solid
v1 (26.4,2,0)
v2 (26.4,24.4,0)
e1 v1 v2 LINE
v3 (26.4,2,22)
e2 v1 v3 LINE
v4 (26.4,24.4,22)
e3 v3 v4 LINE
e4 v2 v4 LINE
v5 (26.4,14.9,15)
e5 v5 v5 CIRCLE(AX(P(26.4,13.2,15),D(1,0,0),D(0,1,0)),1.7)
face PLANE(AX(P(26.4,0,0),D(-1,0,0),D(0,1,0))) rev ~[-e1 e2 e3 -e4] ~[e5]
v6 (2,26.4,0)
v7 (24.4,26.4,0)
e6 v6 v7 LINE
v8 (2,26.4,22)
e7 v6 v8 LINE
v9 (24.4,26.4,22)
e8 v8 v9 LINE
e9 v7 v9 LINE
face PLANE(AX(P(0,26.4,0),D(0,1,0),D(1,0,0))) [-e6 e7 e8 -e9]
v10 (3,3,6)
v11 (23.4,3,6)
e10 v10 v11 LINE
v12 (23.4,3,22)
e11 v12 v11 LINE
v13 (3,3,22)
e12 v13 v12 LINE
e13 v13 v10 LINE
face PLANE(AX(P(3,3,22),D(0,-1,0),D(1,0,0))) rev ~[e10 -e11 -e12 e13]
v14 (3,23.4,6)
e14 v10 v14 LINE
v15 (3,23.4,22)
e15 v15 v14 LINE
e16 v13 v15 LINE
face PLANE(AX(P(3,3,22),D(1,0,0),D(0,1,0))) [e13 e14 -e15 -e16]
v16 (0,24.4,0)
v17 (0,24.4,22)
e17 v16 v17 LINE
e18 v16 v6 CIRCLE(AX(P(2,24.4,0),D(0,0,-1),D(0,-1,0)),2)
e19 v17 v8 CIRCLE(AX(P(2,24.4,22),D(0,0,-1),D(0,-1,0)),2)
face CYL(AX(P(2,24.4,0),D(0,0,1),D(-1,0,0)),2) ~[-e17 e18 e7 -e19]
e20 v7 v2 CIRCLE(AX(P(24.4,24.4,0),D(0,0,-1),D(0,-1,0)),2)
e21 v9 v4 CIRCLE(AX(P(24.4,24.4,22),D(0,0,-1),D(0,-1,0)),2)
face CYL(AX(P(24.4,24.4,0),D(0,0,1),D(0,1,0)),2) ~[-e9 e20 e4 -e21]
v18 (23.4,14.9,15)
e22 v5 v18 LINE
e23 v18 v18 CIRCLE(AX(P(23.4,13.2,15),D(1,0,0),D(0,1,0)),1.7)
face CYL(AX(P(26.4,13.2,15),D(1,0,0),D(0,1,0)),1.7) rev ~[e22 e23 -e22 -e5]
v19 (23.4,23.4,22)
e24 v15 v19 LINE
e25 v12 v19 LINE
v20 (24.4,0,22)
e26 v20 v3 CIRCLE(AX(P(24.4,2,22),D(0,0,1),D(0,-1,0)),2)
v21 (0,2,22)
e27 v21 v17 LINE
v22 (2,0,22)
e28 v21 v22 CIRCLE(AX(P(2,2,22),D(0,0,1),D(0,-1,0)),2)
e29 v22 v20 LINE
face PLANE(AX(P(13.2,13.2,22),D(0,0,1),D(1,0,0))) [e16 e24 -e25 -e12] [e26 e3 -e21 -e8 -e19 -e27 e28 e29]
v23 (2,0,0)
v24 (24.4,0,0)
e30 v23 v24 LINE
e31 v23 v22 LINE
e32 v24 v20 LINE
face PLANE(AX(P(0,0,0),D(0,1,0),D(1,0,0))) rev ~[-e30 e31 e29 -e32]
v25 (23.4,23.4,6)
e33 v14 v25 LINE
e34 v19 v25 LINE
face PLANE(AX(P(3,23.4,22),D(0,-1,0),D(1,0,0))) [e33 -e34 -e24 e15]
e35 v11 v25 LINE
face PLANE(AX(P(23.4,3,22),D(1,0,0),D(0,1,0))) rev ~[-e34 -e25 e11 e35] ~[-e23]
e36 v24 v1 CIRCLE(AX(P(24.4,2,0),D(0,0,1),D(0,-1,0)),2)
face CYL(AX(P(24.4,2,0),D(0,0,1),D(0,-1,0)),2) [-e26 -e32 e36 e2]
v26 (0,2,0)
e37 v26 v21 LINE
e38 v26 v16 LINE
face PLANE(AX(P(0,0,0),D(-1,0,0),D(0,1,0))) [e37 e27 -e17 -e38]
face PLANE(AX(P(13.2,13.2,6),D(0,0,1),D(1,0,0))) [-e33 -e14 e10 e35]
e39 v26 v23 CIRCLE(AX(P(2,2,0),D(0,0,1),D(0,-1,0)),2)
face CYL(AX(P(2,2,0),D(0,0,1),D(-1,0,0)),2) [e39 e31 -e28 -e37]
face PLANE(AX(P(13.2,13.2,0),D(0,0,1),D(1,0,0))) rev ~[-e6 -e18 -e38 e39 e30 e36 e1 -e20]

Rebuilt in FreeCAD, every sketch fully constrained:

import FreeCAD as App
import Part
import Sketcher
Q = App.Units.Quantity


def edges_at(feature, points):
    """Names of the edges that pass closest to the given points."""
    edges = feature.Shape.Edges
    near = lambda p: min(range(len(edges)), key=lambda i: edges[i].distToShape(Part.Vertex(*p))[0])
    return sorted({f"Edge{near(p) + 1}" for p in points})

doc = App.newDocument("Part")
body = doc.addObject("PartDesign::Body", "Body")

sketch1 = body.newObject("Sketcher::SketchObject", "Sketch")
sketch1.AttachmentSupport = (doc.getObject("XY_Plane"), [""])
sketch1.MapMode = "FlatFace"
sketch1.addGeometry([
    Part.LineSegment(App.Vector(0, 26.4, 0), App.Vector(0, 0, 0)),
    Part.LineSegment(App.Vector(0, 0, 0), App.Vector(26.4, 0, 0)),
    Part.LineSegment(App.Vector(26.4, 0, 0), App.Vector(26.4, 26.4, 0)),
    Part.LineSegment(App.Vector(26.4, 26.4, 0), App.Vector(0, 26.4, 0)),
], False)
sketch1.addConstraint([
    Sketcher.Constraint("Coincident", 0, 2, 1, 1),
    Sketcher.Constraint("Coincident", 1, 2, 2, 1),
    Sketcher.Constraint("Coincident", 2, 2, 3, 1),
    Sketcher.Constraint("Coincident", 3, 2, 0, 1),
    Sketcher.Constraint("Vertical", 0),
    Sketcher.Constraint("Horizontal", 1),
    Sketcher.Constraint("Vertical", 2),
    Sketcher.Constraint("Horizontal", 3),
    Sketcher.Constraint("Coincident", 0, 2, -1, 1),
    Sketcher.Constraint("Equal", 3, 0),
    Sketcher.Constraint("DistanceX", 1, 1, 1, 2, Q("26.4 mm")),
])
pad1 = body.newObject("PartDesign::Pad", "Pad")
pad1.Profile = sketch1
pad1.Length = 22

sketch2 = body.newObject("Sketcher::SketchObject", "Sketch001")
sketch2.AttachmentSupport = (doc.getObject("XY_Plane"), [""])
sketch2.MapMode = "FlatFace"
sketch2.AttachmentOffset = App.Placement(App.Vector(0, 0, 22), App.Rotation())
sketch2.addGeometry([
    Part.LineSegment(App.Vector(3, 23.4, 0), App.Vector(3, 3, 0)),
    Part.LineSegment(App.Vector(3, 3, 0), App.Vector(23.4, 3, 0)),
    Part.LineSegment(App.Vector(23.4, 3, 0), App.Vector(23.4, 23.4, 0)),
    Part.LineSegment(App.Vector(23.4, 23.4, 0), App.Vector(3, 23.4, 0)),
], False)
sketch2.addConstraint([
    Sketcher.Constraint("Coincident", 0, 2, 1, 1),
    Sketcher.Constraint("Coincident", 1, 2, 2, 1),
    Sketcher.Constraint("Coincident", 2, 2, 3, 1),
    Sketcher.Constraint("Coincident", 3, 2, 0, 1),
    Sketcher.Constraint("Vertical", 0),
    Sketcher.Constraint("Horizontal", 1),
    Sketcher.Constraint("Vertical", 2),
    Sketcher.Constraint("Horizontal", 3),
    Sketcher.Constraint("Equal", 3, 0),
    Sketcher.Constraint("DistanceX", 1, 1, 1, 2, Q("20.4 mm")),
    Sketcher.Constraint("DistanceX", -1, 1, 0, 2, Q("3 mm")),
    Sketcher.Constraint("DistanceY", -1, 1, 0, 2, Q("3 mm")),
])
pocket1 = body.newObject("PartDesign::Pocket", "Pocket")
pocket1.Profile = sketch2
pocket1.Length = 16
doc.recompute()

fillet = body.newObject("PartDesign::Fillet", "Fillet")
fillet.Base = (pocket1, edges_at(pocket1, [
    (0, 26.4, 11),
    (26.4, 26.4, 11),
    (26.4, 0, 11),
    (0, 0, 11),
]))
fillet.Radius = 2

sketch3 = body.newObject("Sketcher::SketchObject", "Sketch002")
sketch3.AttachmentSupport = (doc.getObject("YZ_Plane"), [""])
sketch3.MapMode = "FlatFace"
sketch3.AttachmentOffset = App.Placement(App.Vector(0, 0, 26.4), App.Rotation())
sketch3.addGeometry(Part.Circle(App.Vector(13.2, 15, 0), App.Vector(0, 0, 1), 1.7), False)
sketch3.addConstraint([
    Sketcher.Constraint("Diameter", 0, Q("3.4 mm")),
    Sketcher.Constraint("DistanceY", -1, 1, 0, 3, Q("15 mm")),
    Sketcher.Constraint("DistanceX", -1, 1, 0, 3, Q("13.2 mm")),
])
pocket2 = body.newObject("PartDesign::Pocket", "Pocket001")
pocket2.Profile = sketch3
pocket2.Length = 5

doc.recompute()
